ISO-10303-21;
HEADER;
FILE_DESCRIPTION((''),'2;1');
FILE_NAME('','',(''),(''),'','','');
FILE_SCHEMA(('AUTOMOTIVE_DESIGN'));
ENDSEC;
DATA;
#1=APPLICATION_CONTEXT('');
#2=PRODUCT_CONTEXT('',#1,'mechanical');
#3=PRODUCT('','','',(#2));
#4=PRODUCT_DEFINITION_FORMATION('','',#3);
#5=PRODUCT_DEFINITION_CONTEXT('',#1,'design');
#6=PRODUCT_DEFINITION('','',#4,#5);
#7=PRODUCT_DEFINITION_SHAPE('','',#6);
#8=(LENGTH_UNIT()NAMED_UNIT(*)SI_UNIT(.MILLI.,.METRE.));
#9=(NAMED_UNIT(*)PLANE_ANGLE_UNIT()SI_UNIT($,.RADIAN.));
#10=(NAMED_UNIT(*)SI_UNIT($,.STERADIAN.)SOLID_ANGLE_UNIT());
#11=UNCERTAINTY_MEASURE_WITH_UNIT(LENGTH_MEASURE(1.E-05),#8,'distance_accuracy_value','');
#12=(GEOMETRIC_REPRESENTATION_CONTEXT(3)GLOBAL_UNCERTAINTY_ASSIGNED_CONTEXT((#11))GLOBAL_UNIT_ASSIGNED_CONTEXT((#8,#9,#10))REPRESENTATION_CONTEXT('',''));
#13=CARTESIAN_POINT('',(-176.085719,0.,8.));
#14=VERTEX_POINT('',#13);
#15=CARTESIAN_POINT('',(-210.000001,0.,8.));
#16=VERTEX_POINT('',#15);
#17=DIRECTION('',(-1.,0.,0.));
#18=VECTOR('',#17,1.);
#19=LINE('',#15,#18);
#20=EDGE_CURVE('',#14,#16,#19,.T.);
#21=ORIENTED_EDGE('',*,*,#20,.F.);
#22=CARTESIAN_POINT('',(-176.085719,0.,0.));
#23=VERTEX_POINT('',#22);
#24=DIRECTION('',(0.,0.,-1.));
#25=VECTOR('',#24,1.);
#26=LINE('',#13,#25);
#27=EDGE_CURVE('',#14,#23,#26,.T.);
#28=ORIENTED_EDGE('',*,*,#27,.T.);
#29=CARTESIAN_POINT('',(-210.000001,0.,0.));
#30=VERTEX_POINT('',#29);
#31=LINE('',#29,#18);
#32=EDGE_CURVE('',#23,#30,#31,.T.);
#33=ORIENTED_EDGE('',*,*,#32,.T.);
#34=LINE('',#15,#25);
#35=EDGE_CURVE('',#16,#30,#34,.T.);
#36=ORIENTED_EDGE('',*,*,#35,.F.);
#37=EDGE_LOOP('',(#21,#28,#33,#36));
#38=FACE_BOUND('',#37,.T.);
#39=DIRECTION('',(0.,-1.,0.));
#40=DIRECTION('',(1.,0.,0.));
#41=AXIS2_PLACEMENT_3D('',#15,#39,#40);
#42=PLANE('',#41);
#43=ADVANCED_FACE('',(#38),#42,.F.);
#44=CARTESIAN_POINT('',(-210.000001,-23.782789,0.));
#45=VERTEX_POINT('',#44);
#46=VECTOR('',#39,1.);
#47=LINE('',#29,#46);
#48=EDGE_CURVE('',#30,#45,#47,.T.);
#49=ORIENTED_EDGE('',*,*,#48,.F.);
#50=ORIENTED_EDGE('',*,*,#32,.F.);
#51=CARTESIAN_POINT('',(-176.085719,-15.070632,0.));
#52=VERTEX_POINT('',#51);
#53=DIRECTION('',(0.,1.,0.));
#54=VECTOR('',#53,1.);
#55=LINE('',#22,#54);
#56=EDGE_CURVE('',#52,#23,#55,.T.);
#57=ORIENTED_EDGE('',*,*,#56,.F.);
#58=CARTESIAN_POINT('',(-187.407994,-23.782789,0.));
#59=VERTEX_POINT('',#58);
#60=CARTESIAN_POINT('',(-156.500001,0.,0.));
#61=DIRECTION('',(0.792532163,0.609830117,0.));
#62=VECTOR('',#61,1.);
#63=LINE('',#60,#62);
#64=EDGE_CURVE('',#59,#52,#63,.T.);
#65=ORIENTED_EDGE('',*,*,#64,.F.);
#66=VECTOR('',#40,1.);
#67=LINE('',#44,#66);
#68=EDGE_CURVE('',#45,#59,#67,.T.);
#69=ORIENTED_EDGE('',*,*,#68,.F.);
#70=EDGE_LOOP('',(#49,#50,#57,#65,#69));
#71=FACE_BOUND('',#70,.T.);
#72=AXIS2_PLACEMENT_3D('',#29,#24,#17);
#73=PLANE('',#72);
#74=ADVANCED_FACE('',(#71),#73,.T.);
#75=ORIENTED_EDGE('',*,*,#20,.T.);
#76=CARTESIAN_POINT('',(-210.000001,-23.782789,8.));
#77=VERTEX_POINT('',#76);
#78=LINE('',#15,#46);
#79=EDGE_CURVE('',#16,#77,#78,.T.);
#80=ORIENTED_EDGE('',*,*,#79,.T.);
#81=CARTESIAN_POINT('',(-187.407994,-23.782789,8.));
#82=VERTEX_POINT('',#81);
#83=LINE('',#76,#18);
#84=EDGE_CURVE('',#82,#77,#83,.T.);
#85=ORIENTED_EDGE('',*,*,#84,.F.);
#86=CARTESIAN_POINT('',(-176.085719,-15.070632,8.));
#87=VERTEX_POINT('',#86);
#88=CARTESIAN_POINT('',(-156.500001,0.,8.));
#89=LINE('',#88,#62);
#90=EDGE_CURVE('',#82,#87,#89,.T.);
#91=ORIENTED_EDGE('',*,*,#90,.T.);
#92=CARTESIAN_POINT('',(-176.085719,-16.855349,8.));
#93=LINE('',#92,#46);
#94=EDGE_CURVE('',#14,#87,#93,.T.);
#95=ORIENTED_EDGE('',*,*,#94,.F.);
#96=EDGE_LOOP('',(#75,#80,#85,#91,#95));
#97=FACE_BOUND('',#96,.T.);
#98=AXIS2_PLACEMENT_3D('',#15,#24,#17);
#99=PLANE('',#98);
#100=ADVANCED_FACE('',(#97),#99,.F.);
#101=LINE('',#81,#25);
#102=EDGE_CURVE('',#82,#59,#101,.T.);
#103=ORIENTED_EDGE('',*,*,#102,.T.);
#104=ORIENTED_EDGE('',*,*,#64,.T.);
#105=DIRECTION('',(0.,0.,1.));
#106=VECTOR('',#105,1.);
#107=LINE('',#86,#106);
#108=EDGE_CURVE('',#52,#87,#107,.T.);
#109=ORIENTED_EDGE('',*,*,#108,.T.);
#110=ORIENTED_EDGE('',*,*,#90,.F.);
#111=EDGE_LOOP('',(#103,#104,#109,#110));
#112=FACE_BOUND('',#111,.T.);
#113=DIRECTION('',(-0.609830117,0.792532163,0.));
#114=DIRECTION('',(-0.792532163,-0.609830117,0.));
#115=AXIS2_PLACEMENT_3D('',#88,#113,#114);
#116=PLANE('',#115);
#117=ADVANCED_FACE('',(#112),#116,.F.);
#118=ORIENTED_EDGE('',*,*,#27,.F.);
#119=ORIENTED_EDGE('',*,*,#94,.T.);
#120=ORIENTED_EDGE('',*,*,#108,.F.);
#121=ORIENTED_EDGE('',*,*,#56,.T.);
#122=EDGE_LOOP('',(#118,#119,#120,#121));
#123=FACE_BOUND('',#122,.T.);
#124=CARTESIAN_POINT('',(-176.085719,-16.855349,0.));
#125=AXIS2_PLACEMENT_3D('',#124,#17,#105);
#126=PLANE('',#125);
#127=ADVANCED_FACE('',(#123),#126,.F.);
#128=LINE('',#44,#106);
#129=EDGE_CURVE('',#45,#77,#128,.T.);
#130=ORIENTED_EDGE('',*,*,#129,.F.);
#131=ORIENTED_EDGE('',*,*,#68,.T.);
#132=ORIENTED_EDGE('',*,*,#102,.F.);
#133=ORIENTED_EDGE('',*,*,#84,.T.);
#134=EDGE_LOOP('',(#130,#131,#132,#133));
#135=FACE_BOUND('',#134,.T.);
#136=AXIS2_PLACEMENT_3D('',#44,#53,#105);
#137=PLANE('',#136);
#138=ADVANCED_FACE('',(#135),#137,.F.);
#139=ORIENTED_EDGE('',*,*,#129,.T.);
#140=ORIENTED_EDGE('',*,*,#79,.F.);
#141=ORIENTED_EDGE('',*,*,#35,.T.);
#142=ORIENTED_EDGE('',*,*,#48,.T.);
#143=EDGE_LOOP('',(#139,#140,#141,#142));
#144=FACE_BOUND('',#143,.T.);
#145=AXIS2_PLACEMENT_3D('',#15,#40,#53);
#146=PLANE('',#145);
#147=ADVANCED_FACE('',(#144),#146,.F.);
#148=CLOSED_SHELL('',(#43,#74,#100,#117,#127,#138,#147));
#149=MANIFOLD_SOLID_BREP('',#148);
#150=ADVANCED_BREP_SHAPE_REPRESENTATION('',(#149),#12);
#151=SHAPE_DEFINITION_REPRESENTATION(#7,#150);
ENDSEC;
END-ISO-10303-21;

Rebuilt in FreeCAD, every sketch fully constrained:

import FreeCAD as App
import Part
import Sketcher
from FreeCAD import Vector

doc = App.newDocument("Part")
body = doc.addObject("PartDesign::Body", "Body")

# Sketch on XY plane
sketch1 = body.newObject("Sketcher::SketchObject", "Sketch")
sketch1.AttachmentSupport = (doc.getObject("XY_Plane"), [""])
sketch1.MapMode = "FlatFace"
sketch1.addGeometry([
    Part.LineSegment(Vector(-210, 0, 0), Vector(-210, -41, 0)),
    Part.LineSegment(Vector(-210, -41, 0), Vector(-157, 0, 0)),
    Part.LineSegment(Vector(-157, 0, 0), Vector(-210, 0, 0)),
], False)
sketch1.addConstraint([
    Sketcher.Constraint("Coincident", 0, 2, 1, 1),
    Sketcher.Constraint("Coincident", 1, 2, 2, 1),
    Sketcher.Constraint("Coincident", 2, 2, 0, 1),
    Sketcher.Constraint("Vertical", 0),
    Sketcher.Constraint("Horizontal", 2),
    Sketcher.Constraint("PointOnObject", 1, 2, -1),
    Sketcher.Constraint("DistanceX", 2, 2, 2, 1, 53.5),
    Sketcher.Constraint("DistanceX", 0, 2, -1, 1, 210.000001),
    Sketcher.Constraint("DistanceY", 0, 2, 0, 1, 41.166672),
])
pad1 = body.newObject("PartDesign::Pad", "Pad")
pad1.Profile = sketch1
pad1.Length = 8

# Sketch on XY plane
sketch2 = body.newObject("Sketcher::SketchObject", "Sketch001")
sketch2.AttachmentSupport = (doc.getObject("XY_Plane"), [""])
sketch2.MapMode = "FlatFace"
sketch2.AttachmentOffset = App.Placement(Vector(0, 0, 8), App.Rotation())
sketch2.addGeometry([
    Part.LineSegment(Vector(-210, -24, 0), Vector(-210, -46, 0)),  # 0
    Part.LineSegment(Vector(-210, -46, 0), Vector(-185, -46, 0)),  # 1
    Part.LineSegment(Vector(-185, -46, 0), Vector(-185, -24, 0)),  # 2
    Part.LineSegment(Vector(-185, -24, 0), Vector(-210, -24, 0)),  # 3
    Part.LineSegment(Vector(-176, 5, 0), Vector(-176, -17, 0)),  # 4
    Part.LineSegment(Vector(-176, -17, 0), Vector(-156, -17, 0)),  # 5
    Part.LineSegment(Vector(-156, -17, 0), Vector(-156, 5, 0)),  # 6
    Part.LineSegment(Vector(-156, 5, 0), Vector(-176, 5, 0)),  # 7
], False)
sketch2.addConstraint([
    Sketcher.Constraint("Coincident", 0, 2, 1, 1),
    Sketcher.Constraint("Coincident", 1, 2, 2, 1),
    Sketcher.Constraint("Coincident", 2, 2, 3, 1),
    Sketcher.Constraint("Coincident", 3, 2, 0, 1),
    Sketcher.Constraint("Coincident", 4, 2, 5, 1),
    Sketcher.Constraint("Coincident", 5, 2, 6, 1),
    Sketcher.Constraint("Coincident", 6, 2, 7, 1),
    Sketcher.Constraint("Coincident", 7, 2, 4, 1),
    Sketcher.Constraint("Vertical", 0),
    Sketcher.Constraint("Horizontal", 1),
    Sketcher.Constraint("Vertical", 2),
    Sketcher.Constraint("Horizontal", 3),
    Sketcher.Constraint("Vertical", 4),
    Sketcher.Constraint("Horizontal", 5),
    Sketcher.Constraint("Vertical", 6),
    Sketcher.Constraint("Horizontal", 7),
    Sketcher.Constraint("DistanceX", 0, 2, -1, 1, 210.000001),
    Sketcher.Constraint("DistanceX", 5, 2, -1, 1, 156.5),
    Sketcher.Constraint("DistanceX", 5, 1, 5, 2, 19.585719),
    Sketcher.Constraint("DistanceY", 4, 2, 4, 1, 21.456909),
    Sketcher.Constraint("DistanceX", 1, 1, 1, 2, 25.296908),
    Sketcher.Constraint("DistanceY", 0, 2, 0, 1, 21.985442),
    Sketcher.Constraint("DistanceY", 0, 2, -1, 1, 45.768231),
    Sketcher.Constraint("DistanceY", 4, 2, -1, 1, 16.855349),
])
pocket1 = body.newObject("PartDesign::Pocket", "Pocket")
pocket1.Profile = sketch2
pocket1.Type = "ThroughAll"

doc.recompute()
